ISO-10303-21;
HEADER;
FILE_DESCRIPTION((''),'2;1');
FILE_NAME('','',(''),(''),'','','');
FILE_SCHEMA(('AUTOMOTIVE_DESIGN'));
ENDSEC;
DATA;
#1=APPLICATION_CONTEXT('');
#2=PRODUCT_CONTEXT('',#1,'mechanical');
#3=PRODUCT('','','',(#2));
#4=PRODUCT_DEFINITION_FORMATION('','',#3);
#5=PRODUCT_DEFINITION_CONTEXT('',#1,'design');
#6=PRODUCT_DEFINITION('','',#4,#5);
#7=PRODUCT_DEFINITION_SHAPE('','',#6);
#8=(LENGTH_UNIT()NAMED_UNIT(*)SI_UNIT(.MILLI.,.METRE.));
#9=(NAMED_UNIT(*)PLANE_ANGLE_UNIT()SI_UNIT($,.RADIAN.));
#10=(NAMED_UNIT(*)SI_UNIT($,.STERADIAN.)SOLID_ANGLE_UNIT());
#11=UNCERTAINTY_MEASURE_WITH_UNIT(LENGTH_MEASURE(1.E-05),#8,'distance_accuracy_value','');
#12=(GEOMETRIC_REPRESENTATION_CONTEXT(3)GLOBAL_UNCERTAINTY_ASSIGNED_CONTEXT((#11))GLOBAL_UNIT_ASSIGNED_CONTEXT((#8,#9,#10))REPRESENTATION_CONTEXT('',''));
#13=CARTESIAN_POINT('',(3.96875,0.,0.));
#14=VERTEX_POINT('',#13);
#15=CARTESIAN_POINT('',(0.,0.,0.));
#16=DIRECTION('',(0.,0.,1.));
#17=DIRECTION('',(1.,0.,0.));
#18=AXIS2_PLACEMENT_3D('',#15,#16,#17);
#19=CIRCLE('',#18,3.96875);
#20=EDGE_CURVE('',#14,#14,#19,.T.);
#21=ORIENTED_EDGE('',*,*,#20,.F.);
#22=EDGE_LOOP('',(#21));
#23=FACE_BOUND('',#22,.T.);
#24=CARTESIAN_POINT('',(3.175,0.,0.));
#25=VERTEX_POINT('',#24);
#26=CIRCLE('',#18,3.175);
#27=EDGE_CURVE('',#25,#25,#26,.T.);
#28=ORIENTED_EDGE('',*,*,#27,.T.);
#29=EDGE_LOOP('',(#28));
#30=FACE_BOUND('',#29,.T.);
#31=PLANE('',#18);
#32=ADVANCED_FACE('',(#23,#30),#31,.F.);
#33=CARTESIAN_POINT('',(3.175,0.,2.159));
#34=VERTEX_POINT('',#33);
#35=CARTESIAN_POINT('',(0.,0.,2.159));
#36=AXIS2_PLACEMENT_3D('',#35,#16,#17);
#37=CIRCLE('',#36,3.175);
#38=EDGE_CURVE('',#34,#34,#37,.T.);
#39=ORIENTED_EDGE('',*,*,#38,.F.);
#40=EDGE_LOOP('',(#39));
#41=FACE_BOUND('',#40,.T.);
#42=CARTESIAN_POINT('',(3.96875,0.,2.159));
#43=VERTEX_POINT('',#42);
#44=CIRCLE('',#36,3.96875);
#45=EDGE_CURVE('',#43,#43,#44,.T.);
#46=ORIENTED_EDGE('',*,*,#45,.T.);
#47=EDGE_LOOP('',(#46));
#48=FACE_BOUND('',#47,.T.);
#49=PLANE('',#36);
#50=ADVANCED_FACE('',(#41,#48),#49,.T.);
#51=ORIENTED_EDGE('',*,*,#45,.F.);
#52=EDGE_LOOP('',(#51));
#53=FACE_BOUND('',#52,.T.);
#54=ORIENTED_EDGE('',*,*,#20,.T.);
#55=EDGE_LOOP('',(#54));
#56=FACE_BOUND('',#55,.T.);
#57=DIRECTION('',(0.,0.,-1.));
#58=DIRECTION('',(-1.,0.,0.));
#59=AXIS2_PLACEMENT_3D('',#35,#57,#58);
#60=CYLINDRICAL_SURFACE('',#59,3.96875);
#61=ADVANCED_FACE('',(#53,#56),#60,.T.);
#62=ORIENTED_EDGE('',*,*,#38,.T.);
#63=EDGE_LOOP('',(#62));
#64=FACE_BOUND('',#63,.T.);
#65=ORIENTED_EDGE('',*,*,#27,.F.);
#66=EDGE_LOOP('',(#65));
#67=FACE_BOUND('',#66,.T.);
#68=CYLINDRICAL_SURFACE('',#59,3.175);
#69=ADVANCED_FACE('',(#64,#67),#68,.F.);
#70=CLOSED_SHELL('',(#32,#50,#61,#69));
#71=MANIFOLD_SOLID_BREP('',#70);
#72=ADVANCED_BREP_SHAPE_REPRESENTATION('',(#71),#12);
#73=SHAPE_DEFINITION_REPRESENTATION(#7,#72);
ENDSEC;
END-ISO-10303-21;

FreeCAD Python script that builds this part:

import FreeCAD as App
import Part
import Sketcher
Q = App.Units.Quantity

doc = App.newDocument("Part")
body = doc.addObject("PartDesign::Body", "Body")

# Sketch on XY plane
sketch1 = body.newObject("Sketcher::SketchObject", "Sketch")
sketch1.AttachmentSupport = (doc.getObject("XY_Plane"), [""])
sketch1.MapMode = "FlatFace"
sketch1.addGeometry([
    Part.Circle(App.Vector(0, 0, 0), App.Vector(0, 0, 1), 4),
    Part.Circle(App.Vector(0, 0, 0), App.Vector(0, 0, 1), 3.2),
], False)
sketch1.addConstraint([
    Sketcher.Constraint("Coincident", 0, 3, -1, 1),
    Sketcher.Constraint("Coincident", 1, 3, -1, 1),
    Sketcher.Constraint("Diameter", 1, Q("0.25 in")),
    Sketcher.Constraint("Diameter", 0, Q("0.3125 in")),
])
pad1 = body.newObject("PartDesign::Pad", "Pad")
pad1.Profile = sketch1
pad1.Length = Q("0.085 in")

doc.recompute()
